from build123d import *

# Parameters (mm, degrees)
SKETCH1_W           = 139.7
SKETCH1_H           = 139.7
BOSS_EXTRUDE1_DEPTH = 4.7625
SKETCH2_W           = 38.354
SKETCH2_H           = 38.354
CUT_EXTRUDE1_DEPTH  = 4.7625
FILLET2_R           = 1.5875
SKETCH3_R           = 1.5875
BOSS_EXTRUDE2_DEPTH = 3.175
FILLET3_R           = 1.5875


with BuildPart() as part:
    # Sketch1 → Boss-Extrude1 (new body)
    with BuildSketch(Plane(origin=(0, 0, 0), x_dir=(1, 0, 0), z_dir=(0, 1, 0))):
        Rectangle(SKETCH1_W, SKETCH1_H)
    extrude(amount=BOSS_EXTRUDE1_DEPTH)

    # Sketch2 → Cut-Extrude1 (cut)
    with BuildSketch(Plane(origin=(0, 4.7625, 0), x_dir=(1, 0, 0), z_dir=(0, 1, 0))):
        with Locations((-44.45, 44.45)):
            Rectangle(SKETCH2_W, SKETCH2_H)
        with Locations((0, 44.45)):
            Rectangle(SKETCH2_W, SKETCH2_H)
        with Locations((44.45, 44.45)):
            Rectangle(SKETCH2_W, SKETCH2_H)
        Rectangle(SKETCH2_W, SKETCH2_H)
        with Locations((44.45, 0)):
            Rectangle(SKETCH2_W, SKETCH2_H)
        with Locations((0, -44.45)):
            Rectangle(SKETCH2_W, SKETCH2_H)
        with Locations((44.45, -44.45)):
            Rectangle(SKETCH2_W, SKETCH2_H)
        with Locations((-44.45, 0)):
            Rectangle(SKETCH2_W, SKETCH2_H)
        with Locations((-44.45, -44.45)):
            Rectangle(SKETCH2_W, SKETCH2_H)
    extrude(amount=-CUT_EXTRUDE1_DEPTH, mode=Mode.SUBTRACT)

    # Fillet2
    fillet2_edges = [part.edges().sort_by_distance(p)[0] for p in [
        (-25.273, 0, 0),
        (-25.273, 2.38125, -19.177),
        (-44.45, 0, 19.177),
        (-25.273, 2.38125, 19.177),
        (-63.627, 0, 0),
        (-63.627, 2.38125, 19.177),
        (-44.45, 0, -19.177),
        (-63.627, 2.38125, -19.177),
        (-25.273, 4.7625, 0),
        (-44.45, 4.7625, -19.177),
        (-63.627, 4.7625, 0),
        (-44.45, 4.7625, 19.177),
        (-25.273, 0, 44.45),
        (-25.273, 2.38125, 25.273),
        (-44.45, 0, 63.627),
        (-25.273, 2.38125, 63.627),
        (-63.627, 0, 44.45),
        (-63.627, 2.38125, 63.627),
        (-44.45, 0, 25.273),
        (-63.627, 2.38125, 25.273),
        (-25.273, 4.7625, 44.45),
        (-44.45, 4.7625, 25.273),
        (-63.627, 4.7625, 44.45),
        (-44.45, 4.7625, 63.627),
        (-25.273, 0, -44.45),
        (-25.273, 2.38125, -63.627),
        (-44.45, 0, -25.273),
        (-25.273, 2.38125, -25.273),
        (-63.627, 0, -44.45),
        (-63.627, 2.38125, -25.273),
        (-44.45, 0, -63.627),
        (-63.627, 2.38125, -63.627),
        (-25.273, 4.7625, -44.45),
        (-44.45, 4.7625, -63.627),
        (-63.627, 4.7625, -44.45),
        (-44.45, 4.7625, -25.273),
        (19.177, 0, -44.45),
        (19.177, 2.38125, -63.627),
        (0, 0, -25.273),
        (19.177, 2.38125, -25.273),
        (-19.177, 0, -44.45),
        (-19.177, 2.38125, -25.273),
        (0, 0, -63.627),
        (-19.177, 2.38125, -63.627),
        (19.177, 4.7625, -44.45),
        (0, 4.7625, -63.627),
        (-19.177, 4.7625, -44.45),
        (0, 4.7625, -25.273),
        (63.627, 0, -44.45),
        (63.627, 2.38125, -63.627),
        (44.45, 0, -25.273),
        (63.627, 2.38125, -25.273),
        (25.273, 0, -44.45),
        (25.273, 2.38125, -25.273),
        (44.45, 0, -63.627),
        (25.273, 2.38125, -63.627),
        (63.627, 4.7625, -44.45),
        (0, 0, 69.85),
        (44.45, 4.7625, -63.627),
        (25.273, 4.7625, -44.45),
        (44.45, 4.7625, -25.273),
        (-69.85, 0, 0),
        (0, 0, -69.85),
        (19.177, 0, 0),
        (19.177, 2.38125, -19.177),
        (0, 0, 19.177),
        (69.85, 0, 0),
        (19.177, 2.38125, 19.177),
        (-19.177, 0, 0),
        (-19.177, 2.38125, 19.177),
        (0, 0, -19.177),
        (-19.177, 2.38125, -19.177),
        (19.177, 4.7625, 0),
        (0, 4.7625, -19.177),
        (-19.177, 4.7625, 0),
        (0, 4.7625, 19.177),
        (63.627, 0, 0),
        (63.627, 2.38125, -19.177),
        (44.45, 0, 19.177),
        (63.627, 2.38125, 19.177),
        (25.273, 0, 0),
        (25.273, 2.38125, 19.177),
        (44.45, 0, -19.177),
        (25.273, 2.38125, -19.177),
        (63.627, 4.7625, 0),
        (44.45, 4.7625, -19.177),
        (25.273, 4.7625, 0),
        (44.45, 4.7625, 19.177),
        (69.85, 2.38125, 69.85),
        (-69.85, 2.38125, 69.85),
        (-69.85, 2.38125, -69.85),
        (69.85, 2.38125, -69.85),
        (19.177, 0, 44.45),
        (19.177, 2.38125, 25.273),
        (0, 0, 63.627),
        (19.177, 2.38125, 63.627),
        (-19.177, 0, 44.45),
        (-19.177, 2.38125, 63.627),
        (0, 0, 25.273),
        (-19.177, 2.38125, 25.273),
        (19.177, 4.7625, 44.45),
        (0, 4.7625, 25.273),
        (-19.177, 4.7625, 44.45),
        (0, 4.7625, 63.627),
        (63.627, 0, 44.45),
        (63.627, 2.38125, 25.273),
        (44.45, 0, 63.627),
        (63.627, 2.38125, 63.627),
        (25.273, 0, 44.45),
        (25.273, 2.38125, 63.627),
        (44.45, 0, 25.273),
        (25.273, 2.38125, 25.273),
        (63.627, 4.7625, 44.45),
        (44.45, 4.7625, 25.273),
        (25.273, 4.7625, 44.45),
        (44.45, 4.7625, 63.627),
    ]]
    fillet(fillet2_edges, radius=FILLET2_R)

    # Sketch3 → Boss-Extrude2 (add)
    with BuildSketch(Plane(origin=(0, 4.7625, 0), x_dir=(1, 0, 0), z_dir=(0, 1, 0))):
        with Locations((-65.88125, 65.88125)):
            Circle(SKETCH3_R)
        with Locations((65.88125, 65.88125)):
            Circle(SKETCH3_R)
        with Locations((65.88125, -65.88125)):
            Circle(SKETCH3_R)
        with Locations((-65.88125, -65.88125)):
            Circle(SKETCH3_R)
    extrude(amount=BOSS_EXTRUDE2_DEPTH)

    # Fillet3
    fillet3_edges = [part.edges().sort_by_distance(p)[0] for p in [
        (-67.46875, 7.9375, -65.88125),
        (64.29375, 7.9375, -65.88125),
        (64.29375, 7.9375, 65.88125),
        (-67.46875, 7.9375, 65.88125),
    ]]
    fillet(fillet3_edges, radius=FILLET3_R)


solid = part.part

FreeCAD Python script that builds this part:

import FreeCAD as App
import Part
import Sketcher
from FreeCAD import Vector
Q = App.Units.Quantity


def edges_at(feature, points):
    """Names of the edges that pass closest to the given points."""
    edges = feature.Shape.Edges
    near = lambda p: min(range(len(edges)), key=lambda i: edges[i].distToShape(Part.Vertex(*p))[0])
    return sorted({f"Edge{near(p) + 1}" for p in points})

doc = App.newDocument("Part")
body = doc.addObject("PartDesign::Body", "Body")

# Sketch on XZ plane
sketch1 = body.newObject("Sketcher::SketchObject", "Sketch")
sketch1.AttachmentSupport = (doc.getObject("XZ_Plane"), [""])
sketch1.MapMode = "FlatFace"
sketch1.addGeometry([
    Part.LineSegment(Vector(-70, -70, 0), Vector(-70, 70, 0)),
    Part.LineSegment(Vector(-70, 70, 0), Vector(70, 70, 0)),
    Part.LineSegment(Vector(70, 70, 0), Vector(70, -70, 0)),
    Part.LineSegment(Vector(70, -70, 0), Vector(-70, -70, 0)),
], False)
sketch1.addConstraint([
    Sketcher.Constraint("Coincident", 0, 2, 1, 1),
    Sketcher.Constraint("Coincident", 1, 2, 2, 1),
    Sketcher.Constraint("Coincident", 2, 2, 3, 1),
    Sketcher.Constraint("Coincident", 3, 2, 0, 1),
    Sketcher.Constraint("Vertical", 0),
    Sketcher.Constraint("Horizontal", 1),
    Sketcher.Constraint("Vertical", 2),
    Sketcher.Constraint("Horizontal", 3),
    Sketcher.Constraint("Symmetric", 0, 2, 2, 2, -1, 1),
    Sketcher.Constraint("Equal", 3, 0),
    Sketcher.Constraint("DistanceX", 1, 1, 1, 2, Q("5.5 in")),
])
pad1 = body.newObject("PartDesign::Pad", "Pad")
pad1.Profile = sketch1
pad1.Length = Q("0.1875 in")
pad1.Reversed = True

# Sketch on XZ plane
sketch2 = body.newObject("Sketcher::SketchObject", "Sketch001")
sketch2.AttachmentSupport = (doc.getObject("XZ_Plane"), [""])
sketch2.MapMode = "FlatFace"
sketch2.AttachmentOffset = App.Placement(Vector(0, 0, -0.1875 * 25.4), App.Rotation())
sketch2.addGeometry([
    Part.LineSegment(Vector(-64, -64, 0), Vector(-64, -25, 0)),  # 0
    Part.LineSegment(Vector(-64, -25, 0), Vector(-25, -25, 0)),  # 1
    Part.LineSegment(Vector(-25, -25, 0), Vector(-25, -64, 0)),  # 2
    Part.LineSegment(Vector(-25, -64, 0), Vector(-64, -64, 0)),  # 3
    Part.LineSegment(Vector(-19, -64, 0), Vector(-19, -25, 0)),  # 4
    Part.LineSegment(Vector(-19, -25, 0), Vector(19, -25, 0)),  # 5
    Part.LineSegment(Vector(19, -25, 0), Vector(19, -64, 0)),  # 6
    Part.LineSegment(Vector(19, -64, 0), Vector(-19, -64, 0)),  # 7
    Part.LineSegment(Vector(25, -64, 0), Vector(25, -25, 0)),  # 8
    Part.LineSegment(Vector(25, -25, 0), Vector(64, -25, 0)),  # 9
    Part.LineSegment(Vector(64, -25, 0), Vector(64, -64, 0)),  # 10
    Part.LineSegment(Vector(64, -64, 0), Vector(25, -64, 0)),  # 11
    Part.LineSegment(Vector(-19, -19, 0), Vector(-19, 19, 0)),  # 12
    Part.LineSegment(Vector(-19, 19, 0), Vector(19, 19, 0)),  # 13
    Part.LineSegment(Vector(19, 19, 0), Vector(19, -19, 0)),  # 14
    Part.LineSegment(Vector(19, -19, 0), Vector(-19, -19, 0)),  # 15
    Part.LineSegment(Vector(25, -19, 0), Vector(25, 19, 0)),  # 16
    Part.LineSegment(Vector(25, 19, 0), Vector(64, 19, 0)),  # 17
    Part.LineSegment(Vector(64, 19, 0), Vector(64, -19, 0)),  # 18
    Part.LineSegment(Vector(64, -19, 0), Vector(25, -19, 0)),  # 19
    Part.LineSegment(Vector(-19, 25, 0), Vector(-19, 64, 0)),  # 20
    Part.LineSegment(Vector(-19, 64, 0), Vector(19, 64, 0)),  # 21
    Part.LineSegment(Vector(19, 64, 0), Vector(19, 25, 0)),  # 22
    Part.LineSegment(Vector(19, 25, 0), Vector(-19, 25, 0)),  # 23
    Part.LineSegment(Vector(25, 25, 0), Vector(25, 64, 0)),  # 24
    Part.LineSegment(Vector(25, 64, 0), Vector(64, 64, 0)),  # 25
    Part.LineSegment(Vector(64, 64, 0), Vector(64, 25, 0)),  # 26
    Part.LineSegment(Vector(64, 25, 0), Vector(25, 25, 0)),  # 27
    Part.LineSegment(Vector(-64, -19, 0), Vector(-64, 19, 0)),  # 28
    Part.LineSegment(Vector(-64, 19, 0), Vector(-25, 19, 0)),  # 29
    Part.LineSegment(Vector(-25, 19, 0), Vector(-25, -19, 0)),  # 30
    Part.LineSegment(Vector(-25, -19, 0), Vector(-64, -19, 0)),  # 31
    Part.LineSegment(Vector(-64, 25, 0), Vector(-64, 64, 0)),  # 32
    Part.LineSegment(Vector(-64, 64, 0), Vector(-25, 64, 0)),  # 33
    Part.LineSegment(Vector(-25, 64, 0), Vector(-25, 25, 0)),  # 34
    Part.LineSegment(Vector(-25, 25, 0), Vector(-64, 25, 0)),  # 35
], False)
sketch2.addConstraint([
    Sketcher.Constraint("Coincident", 0, 2, 1, 1),
    Sketcher.Constraint("Coincident", 1, 2, 2, 1),
    Sketcher.Constraint("Coincident", 2, 2, 3, 1),
    Sketcher.Constraint("Coincident", 3, 2, 0, 1),
    Sketcher.Constraint("Coincident", 4, 2, 5, 1),
    Sketcher.Constraint("Coincident", 5, 2, 6, 1),
    Sketcher.Constraint("Coincident", 6, 2, 7, 1),
    Sketcher.Constraint("Coincident", 7, 2, 4, 1),
    Sketcher.Constraint("Coincident", 8, 2, 9, 1),
    Sketcher.Constraint("Coincident", 9, 2, 10, 1),
    Sketcher.Constraint("Coincident", 10, 2, 11, 1),
    Sketcher.Constraint("Coincident", 11, 2, 8, 1),
    Sketcher.Constraint("Coincident", 12, 2, 13, 1),
    Sketcher.Constraint("Coincident", 13, 2, 14, 1),
    Sketcher.Constraint("Coincident", 14, 2, 15, 1),
    Sketcher.Constraint("Coincident", 15, 2, 12, 1),
    Sketcher.Constraint("Coincident", 16, 2, 17, 1),
    Sketcher.Constraint("Coincident", 17, 2, 18, 1),
    Sketcher.Constraint("Coincident", 18, 2, 19, 1),
    Sketcher.Constraint("Coincident", 19, 2, 16, 1),
    Sketcher.Constraint("Coincident", 20, 2, 21, 1),
    Sketcher.Constraint("Coincident", 21, 2, 22, 1),
    Sketcher.Constraint("Coincident", 22, 2, 23, 1),
    Sketcher.Constraint("Coincident", 23, 2, 20, 1),
    Sketcher.Constraint("Coincident", 24, 2, 25, 1),
    Sketcher.Constraint("Coincident", 25, 2, 26, 1),
    Sketcher.Constraint("Coincident", 26, 2, 27, 1),
    Sketcher.Constraint("Coincident", 27, 2, 24, 1),
    Sketcher.Constraint("Coincident", 28, 2, 29, 1),
    Sketcher.Constraint("Coincident", 29, 2, 30, 1),
    Sketcher.Constraint("Coincident", 30, 2, 31, 1),
    Sketcher.Constraint("Coincident", 31, 2, 28, 1),
    Sketcher.Constraint("Coincident", 32, 2, 33, 1),
    Sketcher.Constraint("Coincident", 33, 2, 34, 1),
    Sketcher.Constraint("Coincident", 34, 2, 35, 1),
    Sketcher.Constraint("Coincident", 35, 2, 32, 1),
    Sketcher.Constraint("Vertical", 0),
    Sketcher.Constraint("Horizontal", 1),
    Sketcher.Constraint("Vertical", 2),
    Sketcher.Constraint("Horizontal", 3),
    Sketcher.Constraint("Vertical", 4),
    Sketcher.Constraint("Horizontal", 5),
    Sketcher.Constraint("Vertical", 6),
    Sketcher.Constraint("Horizontal", 7),
    Sketcher.Constraint("Vertical", 8),
    Sketcher.Constraint("Horizontal", 9),
    Sketcher.Constraint("Vertical", 10),
    Sketcher.Constraint("Horizontal", 11),
    Sketcher.Constraint("Vertical", 12),
    Sketcher.Constraint("Horizontal", 13),
    Sketcher.Constraint("Vertical", 14),
    Sketcher.Constraint("Horizontal", 15),
    Sketcher.Constraint("Vertical", 16),
    Sketcher.Constraint("Horizontal", 17),
    Sketcher.Constraint("Vertical", 18),
    Sketcher.Constraint("Horizontal", 19),
    Sketcher.Constraint("Vertical", 20),
    Sketcher.Constraint("Horizontal", 21),
    Sketcher.Constraint("Vertical", 22),
    Sketcher.Constraint("Horizontal", 23),
    Sketcher.Constraint("Vertical", 24),
    Sketcher.Constraint("Horizontal", 25),
    Sketcher.Constraint("Vertical", 26),
    Sketcher.Constraint("Horizontal", 27),
    Sketcher.Constraint("Vertical", 28),
    Sketcher.Constraint("Horizontal", 29),
    Sketcher.Constraint("Vertical", 30),
    Sketcher.Constraint("Horizontal", 31),
    Sketcher.Constraint("Vertical", 32),
    Sketcher.Constraint("Horizontal", 33),
    Sketcher.Constraint("Vertical", 34),
    Sketcher.Constraint("Horizontal", 35),
    Sketcher.Constraint("Symmetric", 12, 2, 14, 2, -1, 1),
    Sketcher.Constraint("Symmetric", 6, 2, 20, 2, -1, 1),
    Sketcher.Constraint("Symmetric", 4, 2, 22, 2, -1, 1),
    Sketcher.Constraint("Symmetric", 2, 2, 24, 2, -1, 1),
    Sketcher.Constraint("Symmetric", 0, 2, 26, 2, -1, 1),
    Sketcher.Constraint("Symmetric", 18, 2, 28, 2, -1, 1),
    Sketcher.Constraint("Symmetric", 16, 2, 30, 2, -1, 1),
    Sketcher.Constraint("Symmetric", 10, 2, 32, 2, -1, 1),
    Sketcher.Constraint("Symmetric", 8, 2, 34, 2, -1, 1),
    Sketcher.Constraint("Symmetric", 1, 2, 8, 2, -2),
    Sketcher.Constraint("Symmetric", 3, 2, 10, 2, -2),
    Sketcher.Constraint("Horizontal", 1, 2, 4, 2),
    Sketcher.Constraint("Horizontal", 3, 2, 6, 2),
    Sketcher.Constraint("Horizontal", 13, 2, 16, 2),
    Sketcher.Constraint("Horizontal", 15, 2, 18, 2),
    Sketcher.Constraint("Vertical", 7, 2, 12, 2),
    Sketcher.Constraint("Vertical", 6, 2, 13, 2),
    Sketcher.Constraint("Vertical", 11, 2, 16, 2),
    Sketcher.Constraint("Vertical", 10, 2, 17, 2),
    Sketcher.Constraint("Equal", 3, 5),
    Sketcher.Constraint("Equal", 35, 0),
    Sketcher.Constraint("Equal", 10, 12),
    Sketcher.Constraint("DistanceX", 1, 1, 1, 2, Q("1.51 in")),
    Sketcher.Constraint("DistanceX", 1, 2, 9, 2, Q("3.5 in")),
    Sketcher.Constraint("DistanceY", 4, 2, 20, 2, Q("3.5 in")),
])
pocket1 = body.newObject("PartDesign::Pocket", "Pocket")
pocket1.Profile = sketch2
pocket1.Length = Q("0.1875 in")
pocket1.Reversed = True
doc.recompute()

fillet = body.newObject("PartDesign::Fillet", "Fillet")
fillet.Base = (pocket1, edges_at(pocket1, [
    (-25.273, 0, 0),
    (-25.273, 2.381, -19.177),
    (-44.45, 0, 19.177),
    (-25.273, 2.381, 19.177),
    (-63.627, 0, 0),
    (-63.627, 2.381, 19.177),
    (-44.45, 0, -19.177),
    (-63.627, 2.381, -19.177),
    (-25.273, 4.763, 0),
    (-44.45, 4.763, -19.177),
    (-63.627, 4.763, 0),
    (-44.45, 4.763, 19.177),
    (-25.273, 0, 44.45),
    (-25.273, 2.381, 25.273),
    (-44.45, 0, 63.627),
    (-25.273, 2.381, 63.627),
    (-63.627, 0, 44.45),
    (-63.627, 2.381, 63.627),
    (-44.45, 0, 25.273),
    (-63.627, 2.381, 25.273),
    (-25.273, 4.763, 44.45),
    (-44.45, 4.763, 25.273),
    (-63.627, 4.763, 44.45),
    (-44.45, 4.763, 63.627),
    (-25.273, 0, -44.45),
    (-25.273, 2.381, -63.627),
    (-44.45, 0, -25.273),
    (-25.273, 2.381, -25.273),
    (-63.627, 0, -44.45),
    (-63.627, 2.381, -25.273),
    (-44.45, 0, -63.627),
    (-63.627, 2.381, -63.627),
    (-25.273, 4.763, -44.45),
    (-44.45, 4.763, -63.627),
    (-63.627, 4.763, -44.45),
    (-44.45, 4.763, -25.273),
    (19.177, 0, -44.45),
    (19.177, 2.381, -63.627),
    (0, 0, -25.273),
    (19.177, 2.381, -25.273),
    (-19.177, 0, -44.45),
    (-19.177, 2.381, -25.273),
    (0, 0, -63.627),
    (-19.177, 2.381, -63.627),
    (19.177, 4.763, -44.45),
    (0, 4.763, -63.627),
    (-19.177, 4.763, -44.45),
    (0, 4.763, -25.273),
    (63.627, 0, -44.45),
    (63.627, 2.381, -63.627),
    (44.45, 0, -25.273),
    (63.627, 2.381, -25.273),
    (25.273, 0, -44.45),
    (25.273, 2.381, -25.273),
    (44.45, 0, -63.627),
    (25.273, 2.381, -63.627),
    (63.627, 4.763, -44.45),
    (0, 0, 69.85),
    (44.45, 4.763, -63.627),
    (25.273, 4.763, -44.45),
    (44.45, 4.763, -25.273),
    (-69.85, 0, 0),
    (0, 0, -69.85),
    (19.177, 0, 0),
    (19.177, 2.381, -19.177),
    (0, 0, 19.177),
    (69.85, 0, 0),
    (19.177, 2.381, 19.177),
    (-19.177, 0, 0),
    (-19.177, 2.381, 19.177),
    (0, 0, -19.177),
    (-19.177, 2.381, -19.177),
    (19.177, 4.763, 0),
    (0, 4.763, -19.177),
    (-19.177, 4.763, 0),
    (0, 4.763, 19.177),
    (63.627, 0, 0),
    (63.627, 2.381, -19.177),
    (44.45, 0, 19.177),
    (63.627, 2.381, 19.177),
    (25.273, 0, 0),
    (25.273, 2.381, 19.177),
    (44.45, 0, -19.177),
    (25.273, 2.381, -19.177),
    (63.627, 4.763, 0),
    (44.45, 4.763, -19.177),
    (25.273, 4.763, 0),
    (44.45, 4.763, 19.177),
    (69.85, 2.381, 69.85),
    (-69.85, 2.381, 69.85),
    (-69.85, 2.381, -69.85),
    (69.85, 2.381, -69.85),
    (19.177, 0, 44.45),
    (19.177, 2.381, 25.273),
    (0, 0, 63.627),
    (19.177, 2.381, 63.627),
    (-19.177, 0, 44.45),
    (-19.177, 2.381, 63.627),
    (0, 0, 25.273),
    (-19.177, 2.381, 25.273),
    (19.177, 4.763, 44.45),
    (0, 4.763, 25.273),
    (-19.177, 4.763, 44.45),
    (0, 4.763, 63.627),
    (63.627, 0, 44.45),
    (63.627, 2.381, 25.273),
    (44.45, 0, 63.627),
    (63.627, 2.381, 63.627),
    (25.273, 0, 44.45),
    (25.273, 2.381, 63.627),
    (44.45, 0, 25.273),
    (25.273, 2.381, 25.273),
    (63.627, 4.763, 44.45),
    (44.45, 4.763, 25.273),
    (25.273, 4.763, 44.45),
    (44.45, 4.763, 63.627),
]))
fillet.Radius = Q("0.0625 in")

# Sketch on XZ plane
sketch3 = body.newObject("Sketcher::SketchObject", "Sketch002")
sketch3.AttachmentSupport = (doc.getObject("XZ_Plane"), [""])
sketch3.MapMode = "FlatFace"
sketch3.AttachmentOffset = App.Placement(Vector(0, 0, -0.1875 * 25.4), App.Rotation())
sketch3.addGeometry([
    Part.Circle(Vector(-65.9, -65.9, 0), Vector(0, 0, 1), 1.6),
    Part.Circle(Vector(65.9, -65.9, 0), Vector(0, 0, 1), 1.6),
    Part.Circle(Vector(65.9, 65.9, 0), Vector(0, 0, 1), 1.6),
    Part.Circle(Vector(-65.9, 65.9, 0), Vector(0, 0, 1), 1.6),
], False)
sketch3.addConstraint([
    Sketcher.Constraint("Equal", 0, 1),
    Sketcher.Constraint("Equal", 1, 2),
    Sketcher.Constraint("Equal", 2, 3),
    Sketcher.Constraint("Symmetric", 0, 3, 2, 3, -1, 1),
    Sketcher.Constraint("Symmetric", 1, 3, 3, 3, -1, 1),
    Sketcher.Constraint("Symmetric", 0, 3, 1, 3, -2),
    Sketcher.Constraint("Diameter", 0, Q("0.125 in")),
    Sketcher.Constraint("DistanceX", 0, 3, -1, 1, Q("2.59375 in")),
    Sketcher.Constraint("DistanceY", 0, 3, -1, 1, Q("2.59375 in")),
])
pad2 = body.newObject("PartDesign::Pad", "Pad001")
pad2.Profile = sketch3
pad2.Length = Q("0.125 in")
pad2.Reversed = True
doc.recompute()

fillet2 = body.newObject("PartDesign::Fillet", "Fillet001")
fillet2.Base = (pad2, edges_at(pad2, [
    (-67.469, 7.938, -65.881),
    (64.294, 7.938, -65.881),
    (64.294, 7.938, 65.881),
    (-67.469, 7.938, 65.881),
]))
fillet2.Radius = Q("0.0625 in")

doc.recompute()
